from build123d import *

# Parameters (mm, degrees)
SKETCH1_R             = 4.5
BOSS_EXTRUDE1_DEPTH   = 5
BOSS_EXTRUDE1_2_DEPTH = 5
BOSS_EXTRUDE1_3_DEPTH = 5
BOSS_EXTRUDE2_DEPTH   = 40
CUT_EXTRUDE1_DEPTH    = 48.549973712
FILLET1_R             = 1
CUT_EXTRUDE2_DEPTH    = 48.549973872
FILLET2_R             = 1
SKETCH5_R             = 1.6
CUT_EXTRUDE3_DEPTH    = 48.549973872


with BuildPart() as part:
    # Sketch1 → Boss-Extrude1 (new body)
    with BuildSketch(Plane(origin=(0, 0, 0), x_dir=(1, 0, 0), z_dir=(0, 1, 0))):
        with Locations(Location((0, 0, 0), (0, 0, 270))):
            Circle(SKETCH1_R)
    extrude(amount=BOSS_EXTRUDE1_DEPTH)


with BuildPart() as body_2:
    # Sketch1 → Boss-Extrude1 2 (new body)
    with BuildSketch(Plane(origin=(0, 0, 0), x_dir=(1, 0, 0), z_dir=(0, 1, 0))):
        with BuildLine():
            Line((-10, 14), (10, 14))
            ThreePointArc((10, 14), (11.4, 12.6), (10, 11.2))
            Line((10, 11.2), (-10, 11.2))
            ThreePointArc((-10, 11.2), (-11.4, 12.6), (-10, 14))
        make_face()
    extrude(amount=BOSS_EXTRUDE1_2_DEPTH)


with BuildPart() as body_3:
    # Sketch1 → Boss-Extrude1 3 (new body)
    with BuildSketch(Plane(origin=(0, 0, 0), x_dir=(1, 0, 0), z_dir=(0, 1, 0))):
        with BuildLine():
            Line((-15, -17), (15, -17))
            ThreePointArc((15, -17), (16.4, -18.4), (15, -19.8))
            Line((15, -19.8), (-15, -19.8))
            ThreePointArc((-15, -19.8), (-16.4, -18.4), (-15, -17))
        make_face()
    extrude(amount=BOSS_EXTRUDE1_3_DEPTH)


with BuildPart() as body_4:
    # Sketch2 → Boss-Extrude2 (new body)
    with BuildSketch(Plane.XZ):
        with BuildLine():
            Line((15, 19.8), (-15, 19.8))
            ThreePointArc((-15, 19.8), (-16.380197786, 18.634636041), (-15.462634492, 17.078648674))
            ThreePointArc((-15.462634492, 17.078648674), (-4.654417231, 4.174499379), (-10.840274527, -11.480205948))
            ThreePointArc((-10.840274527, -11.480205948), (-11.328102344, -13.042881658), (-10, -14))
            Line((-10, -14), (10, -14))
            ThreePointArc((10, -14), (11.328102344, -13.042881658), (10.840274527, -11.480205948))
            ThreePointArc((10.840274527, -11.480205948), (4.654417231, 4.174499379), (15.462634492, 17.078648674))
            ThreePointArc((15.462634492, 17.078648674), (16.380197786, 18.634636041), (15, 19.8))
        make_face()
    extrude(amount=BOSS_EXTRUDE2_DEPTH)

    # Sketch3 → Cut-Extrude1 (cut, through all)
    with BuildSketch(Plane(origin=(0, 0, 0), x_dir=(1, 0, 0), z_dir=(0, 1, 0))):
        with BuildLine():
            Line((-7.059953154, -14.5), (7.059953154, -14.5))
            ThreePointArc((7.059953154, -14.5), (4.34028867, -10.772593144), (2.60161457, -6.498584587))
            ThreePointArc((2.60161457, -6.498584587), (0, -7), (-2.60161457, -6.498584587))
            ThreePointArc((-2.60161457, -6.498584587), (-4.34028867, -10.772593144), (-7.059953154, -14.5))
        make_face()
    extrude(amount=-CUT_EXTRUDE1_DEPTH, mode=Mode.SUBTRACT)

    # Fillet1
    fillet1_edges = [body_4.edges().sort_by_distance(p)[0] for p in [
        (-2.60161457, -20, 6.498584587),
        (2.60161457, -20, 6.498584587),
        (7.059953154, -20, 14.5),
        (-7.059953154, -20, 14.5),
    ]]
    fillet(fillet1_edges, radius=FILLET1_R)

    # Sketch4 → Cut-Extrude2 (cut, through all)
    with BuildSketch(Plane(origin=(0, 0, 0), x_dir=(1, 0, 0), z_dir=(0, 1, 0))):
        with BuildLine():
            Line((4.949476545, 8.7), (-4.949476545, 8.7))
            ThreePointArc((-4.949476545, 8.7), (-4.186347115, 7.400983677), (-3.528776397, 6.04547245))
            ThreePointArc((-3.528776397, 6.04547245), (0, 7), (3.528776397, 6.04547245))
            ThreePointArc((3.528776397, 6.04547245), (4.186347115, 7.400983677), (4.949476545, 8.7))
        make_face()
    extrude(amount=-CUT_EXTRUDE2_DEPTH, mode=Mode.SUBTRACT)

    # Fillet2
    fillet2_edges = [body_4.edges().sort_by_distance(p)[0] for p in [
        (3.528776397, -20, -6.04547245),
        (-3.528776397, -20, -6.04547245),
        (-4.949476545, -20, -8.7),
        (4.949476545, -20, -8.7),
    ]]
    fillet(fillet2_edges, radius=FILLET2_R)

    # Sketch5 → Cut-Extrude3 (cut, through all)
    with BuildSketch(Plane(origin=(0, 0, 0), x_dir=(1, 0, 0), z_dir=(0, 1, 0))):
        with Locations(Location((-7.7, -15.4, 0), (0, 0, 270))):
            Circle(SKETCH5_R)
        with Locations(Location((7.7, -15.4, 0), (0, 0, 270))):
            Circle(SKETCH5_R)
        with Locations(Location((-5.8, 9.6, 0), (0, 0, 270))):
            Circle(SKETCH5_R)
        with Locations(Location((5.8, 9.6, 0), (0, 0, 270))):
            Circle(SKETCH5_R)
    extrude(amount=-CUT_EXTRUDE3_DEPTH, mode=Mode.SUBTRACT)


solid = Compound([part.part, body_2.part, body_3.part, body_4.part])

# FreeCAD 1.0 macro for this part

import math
import FreeCAD as App
import Part
import Sketcher
Q = App.Units.Quantity


def edges_at(feature, points):
    """Names of the edges that pass closest to the given points."""
    edges = feature.Shape.Edges
    near = lambda p: min(range(len(edges)), key=lambda i: edges[i].distToShape(Part.Vertex(*p))[0])
    return sorted({f"Edge{near(p) + 1}" for p in points})

doc = App.newDocument("Part")
body = doc.addObject("PartDesign::Body", "Body")

sketch1 = body.newObject("Sketcher::SketchObject", "Sketch")
sketch1.AttachmentSupport = (doc.getObject("XZ_Plane"), [""])
sketch1.MapMode = "FlatFace"
sketch1.addGeometry(Part.Circle(App.Vector(0, 0, 0), App.Vector(0, 0, 1), 4.5), False)
sketch1.addConstraint([
    Sketcher.Constraint("Coincident", 0, 3, -1, 1),
    Sketcher.Constraint("Diameter", 0, Q("9 mm")),
])
pad1 = body.newObject("PartDesign::Pad", "Pad")
pad1.Profile = sketch1
pad1.Length = 5
pad1.Reversed = True
body2 = doc.addObject("PartDesign::Body", "Body001")

sketch2 = body2.newObject("Sketcher::SketchObject", "Sketch001")
sketch2.AttachmentSupport = (doc.getObject("XZ_Plane001"), [""])
sketch2.MapMode = "FlatFace"
sketch2.addGeometry([
    Part.LineSegment(App.Vector(10, -14, 0), App.Vector(-10, -14, 0)),
    Part.ArcOfCircle(Part.Circle(App.Vector(-10, -12.6, 0), App.Vector(0, 0, 1), 1.4), math.radians(90), math.radians(270)),
    Part.LineSegment(App.Vector(-10, -11.2, 0), App.Vector(10, -11.2, 0)),
    Part.ArcOfCircle(Part.Circle(App.Vector(10, -12.6, 0), App.Vector(0, 0, 1), 1.4), math.radians(-90), math.radians(90)),
], False)
sketch2.addConstraint([
    Sketcher.Constraint("Tangent", 0, 2, 1, 2),
    Sketcher.Constraint("Tangent", 1, 1, 2, 1),
    Sketcher.Constraint("Tangent", 2, 2, 3, 2),
    Sketcher.Constraint("Tangent", 3, 1, 0, 1),
    Sketcher.Constraint("Horizontal", 0),
    Sketcher.Constraint("Horizontal", 2),
    Sketcher.Constraint("Radius", 1, Q("1.4 mm")),
    Sketcher.Constraint("DistanceX", 0, 2, 0, 1, Q("20 mm")),
    Sketcher.Constraint("DistanceX", 1, 3, -1, 1, Q("10 mm")),
    Sketcher.Constraint("DistanceY", 0, 2, -1, 1, Q("14 mm")),
])
pad2 = body2.newObject("PartDesign::Pad", "Pad001")
pad2.Profile = sketch2
pad2.Length = 5
pad2.Reversed = True
body3 = doc.addObject("PartDesign::Body", "Body002")

sketch3 = body3.newObject("Sketcher::SketchObject", "Sketch002")
sketch3.AttachmentSupport = (doc.getObject("XZ_Plane002"), [""])
sketch3.MapMode = "FlatFace"
sketch3.addGeometry([
    Part.LineSegment(App.Vector(15, 17, 0), App.Vector(-15, 17, 0)),
    Part.ArcOfCircle(Part.Circle(App.Vector(-15, 18.4, 0), App.Vector(0, 0, 1), 1.4), math.radians(90), math.radians(270)),
    Part.LineSegment(App.Vector(-15, 19.8, 0), App.Vector(15, 19.8, 0)),
    Part.ArcOfCircle(Part.Circle(App.Vector(15, 18.4, 0), App.Vector(0, 0, 1), 1.4), math.radians(-90), math.radians(90)),
], False)
sketch3.addConstraint([
    Sketcher.Constraint("Tangent", 0, 2, 1, 2),
    Sketcher.Constraint("Tangent", 1, 1, 2, 1),
    Sketcher.Constraint("Tangent", 2, 2, 3, 2),
    Sketcher.Constraint("Tangent", 3, 1, 0, 1),
    Sketcher.Constraint("Horizontal", 0),
    Sketcher.Constraint("Horizontal", 2),
    Sketcher.Constraint("Radius", 1, Q("1.4 mm")),
    Sketcher.Constraint("DistanceX", 0, 2, 0, 1, Q("30 mm")),
    Sketcher.Constraint("DistanceX", 1, 3, -1, 1, Q("15 mm")),
    Sketcher.Constraint("DistanceY", -1, 1, 0, 2, Q("17 mm")),
])
pad3 = body3.newObject("PartDesign::Pad", "Pad002")
pad3.Profile = sketch3
pad3.Length = 5
pad3.Reversed = True
body4 = doc.addObject("PartDesign::Body", "Body003")

sketch4 = body4.newObject("Sketcher::SketchObject", "Sketch003")
sketch4.AttachmentSupport = (doc.getObject("XZ_Plane003"), [""])
sketch4.MapMode = "FlatFace"
sketch4.addGeometry([
    Part.LineSegment(App.Vector(15, 19.8, 0), App.Vector(-15, 19.8, 0)),
    Part.ArcOfCircle(Part.Circle(App.Vector(-15, 18.4, 0), App.Vector(0, 0, 1), 1.4), math.radians(90), math.radians(251)),
    Part.ArcOfCircle(Part.Circle(App.Vector(-20.9, 1.5, 0), App.Vector(0, 0, 1), 16.5), math.radians(-52), math.radians(71)),
    Part.ArcOfCircle(Part.Circle(App.Vector(-10, -12.6, 0), App.Vector(0, 0, 1), 1.4), math.radians(127), math.radians(270)),
    Part.LineSegment(App.Vector(-10, -14, 0), App.Vector(10, -14, 0)),
    Part.ArcOfCircle(Part.Circle(App.Vector(10, -12.6, 0), App.Vector(0, 0, 1), 1.4), math.radians(-90), math.radians(53)),
    Part.ArcOfCircle(Part.Circle(App.Vector(20.9, 1.5, 0), App.Vector(0, 0, 1), 16.5), math.radians(109), math.radians(232)),
    Part.ArcOfCircle(Part.Circle(App.Vector(15, 18.4, 0), App.Vector(0, 0, 1), 1.4), math.radians(-71), math.radians(90)),
], False)
sketch4.addConstraint([
    Sketcher.Constraint("Tangent", 0, 2, 1, 1),
    Sketcher.Constraint("Tangent", 1, 2, 2, 2),
    Sketcher.Constraint("Coincident", 2, 1, 3, 1),
    Sketcher.Constraint("Tangent", 3, 2, 4, 1),
    Sketcher.Constraint("Tangent", 4, 2, 5, 1),
    Sketcher.Constraint("Coincident", 5, 2, 6, 2),
    Sketcher.Constraint("Tangent", 6, 1, 7, 1),
    Sketcher.Constraint("Tangent", 7, 2, 0, 1),
    Sketcher.Constraint("Horizontal", 0),
    Sketcher.Constraint("Horizontal", 4),
    Sketcher.Constraint("Equal", 1, 3),
    Sketcher.Constraint("Equal", 3, 5),
    Sketcher.Constraint("Equal", 2, 6),
    Sketcher.Constraint("Equal", 5, 7),
    Sketcher.Constraint("Symmetric", 2, 3, 6, 3, -2),
    Sketcher.Constraint("Horizontal", 2, 1, 5, 2),
    Sketcher.Constraint("Radius", 1, Q("1.4 mm")),
    Sketcher.Constraint("DistanceX", 0, 2, 0, 1, Q("30 mm")),
    Sketcher.Constraint("DistanceX", 4, 1, 4, 2, Q("20 mm")),
    Sketcher.Constraint("DistanceY", 3, 2, -1, 1, Q("14 mm")),
    Sketcher.Constraint("DistanceY", 3, 3, 1, 3, Q("31 mm")),
    Sketcher.Constraint("Radius", 2, Q("16.458371 mm")),
    Sketcher.Constraint("DistanceY", -1, 1, 2, 3, Q("1.54487 mm")),
])
pad4 = body4.newObject("PartDesign::Pad", "Pad003")
pad4.Profile = sketch4
pad4.Length = 40

sketch5 = body4.newObject("Sketcher::SketchObject", "Sketch004")
sketch5.AttachmentSupport = (doc.getObject("XZ_Plane003"), [""])
sketch5.MapMode = "FlatFace"
sketch5.addGeometry([
    Part.LineSegment(App.Vector(-7, 14, 0), App.Vector(7, 14, 0)),
    Part.ArcOfCircle(Part.Circle(App.Vector(21, 2, 0), App.Vector(0, 0, 1), 19), math.radians(137), math.radians(165)),
    Part.ArcOfCircle(Part.Circle(App.Vector(0, 0, 0), App.Vector(0, 0, 1), 7), math.radians(68), math.radians(112)),
    Part.ArcOfCircle(Part.Circle(App.Vector(-21, 2, 0), App.Vector(0, 0, 1), 19), math.radians(15), math.radians(43)),
], False)
sketch5.addConstraint([
    Sketcher.Constraint("Coincident", 0, 2, 1, 1),
    Sketcher.Constraint("Coincident", 1, 2, 2, 1),
    Sketcher.Constraint("Coincident", 2, 2, 3, 1),
    Sketcher.Constraint("Coincident", 3, 2, 0, 1),
    Sketcher.Constraint("Horizontal", 0),
    Sketcher.Constraint("Coincident", 2, 3, -1, 1),
    Sketcher.Constraint("Equal", 1, 3),
    Sketcher.Constraint("Symmetric", 1, 3, 3, 3, -2),
    Sketcher.Constraint("Radius", 2, Q("7 mm")),
    Sketcher.Constraint("DistanceY", -1, 1, 0, 2, Q("14.5 mm")),
    Sketcher.Constraint("Radius", 1, Q("18.958371 mm")),
    Sketcher.Constraint("DistanceX", 0, 1, 0, 2, Q("14.119906 mm")),
    Sketcher.Constraint("DistanceY", -1, 1, 1, 3, Q("1.54487 mm")),
])
pocket1 = body4.newObject("PartDesign::Pocket", "Pocket")
pocket1.Profile = sketch5
pocket1.Type = "ThroughAll"
pocket1.Reversed = True
doc.recompute()

fillet = body4.newObject("PartDesign::Fillet", "Fillet")
fillet.Base = (pocket1, edges_at(pocket1, [
    (-2.602, -20, 6.499),
    (2.602, -20, 6.499),
    (7.06, -20, 14.5),
    (-7.06, -20, 14.5),
]))
fillet.Radius = 1

sketch6 = body4.newObject("Sketcher::SketchObject", "Sketch005")
sketch6.AttachmentSupport = (doc.getObject("XZ_Plane003"), [""])
sketch6.MapMode = "FlatFace"
sketch6.addGeometry([
    Part.LineSegment(App.Vector(4.9, -8.7, 0), App.Vector(-4.9, -8.7, 0)),
    Part.ArcOfCircle(Part.Circle(App.Vector(-20.9, 1.5, 0), App.Vector(0, 0, 1), 19), math.radians(-32.71), math.radians(-23.6)),
    Part.ArcOfCircle(Part.Circle(App.Vector(0, 0, 0), App.Vector(0, 0, 1), 7), math.radians(-120), math.radians(-60)),
    Part.ArcOfCircle(Part.Circle(App.Vector(20.9, 1.5, 0), App.Vector(0, 0, 1), 19), math.radians(-156.4), math.radians(-147.29)),
], False)
sketch6.addConstraint([
    Sketcher.Constraint("Coincident", 0, 2, 1, 1),
    Sketcher.Constraint("Coincident", 1, 2, 2, 1),
    Sketcher.Constraint("Coincident", 2, 2, 3, 1),
    Sketcher.Constraint("Coincident", 3, 2, 0, 1),
    Sketcher.Constraint("Horizontal", 0),
    Sketcher.Constraint("Coincident", 2, 3, -1, 1),
    Sketcher.Constraint("Equal", 1, 3),
    Sketcher.Constraint("Symmetric", 1, 3, 3, 3, -2),
    Sketcher.Constraint("Radius", 2, Q("7 mm")),
    Sketcher.Constraint("DistanceY", 0, 2, -1, 1, Q("8.7 mm")),
    Sketcher.Constraint("Radius", 1, Q("18.958371 mm")),
    Sketcher.Constraint("DistanceX", 0, 2, 1, 2, Q("1.4207 mm")),
    Sketcher.Constraint("DistanceX", 0, 2, 0, 1, Q("9.898953 mm")),
])
pocket2 = body4.newObject("PartDesign::Pocket", "Pocket001")
pocket2.Profile = sketch6
pocket2.Type = "ThroughAll"
pocket2.Reversed = True
doc.recompute()

fillet2 = body4.newObject("PartDesign::Fillet", "Fillet001")
fillet2.Base = (pocket2, edges_at(pocket2, [
    (3.529, -20, -6.045),
    (-3.529, -20, -6.045),
    (-4.949, -20, -8.7),
    (4.949, -20, -8.7),
]))
fillet2.Radius = 1

sketch7 = body4.newObject("Sketcher::SketchObject", "Sketch006")
sketch7.AttachmentSupport = (doc.getObject("XZ_Plane003"), [""])
sketch7.MapMode = "FlatFace"
sketch7.addGeometry([
    Part.Circle(App.Vector(-7.7, 15.4, 0), App.Vector(0, 0, 1), 1.6),
    Part.Circle(App.Vector(7.7, 15.4, 0), App.Vector(0, 0, 1), 1.6),
    Part.Circle(App.Vector(-5.8, -9.6, 0), App.Vector(0, 0, 1), 1.6),
    Part.Circle(App.Vector(5.8, -9.6, 0), App.Vector(0, 0, 1), 1.6),
], False)
sketch7.addConstraint([
    Sketcher.Constraint("Equal", 0, 1),
    Sketcher.Constraint("Equal", 1, 2),
    Sketcher.Constraint("Equal", 2, 3),
    Sketcher.Constraint("Symmetric", 0, 3, 1, 3, -2),
    Sketcher.Constraint("Symmetric", 2, 3, 3, 3, -2),
    Sketcher.Constraint("Diameter", 0, Q("3.2 mm")),
    Sketcher.Constraint("DistanceY", 2, 3, 0, 3, Q("25 mm")),
    Sketcher.Constraint("DistanceX", 0, 3, -1, 1, Q("7.7 mm")),
    Sketcher.Constraint("DistanceY", -1, 1, 0, 3, Q("15.4 mm")),
    Sketcher.Constraint("DistanceX", 2, 3, -1, 1, Q("5.8 mm")),
])
pocket3 = body4.newObject("PartDesign::Pocket", "Pocket002")
pocket3.Profile = sketch7
pocket3.Type = "ThroughAll"
pocket3.Reversed = True

doc.recompute()
